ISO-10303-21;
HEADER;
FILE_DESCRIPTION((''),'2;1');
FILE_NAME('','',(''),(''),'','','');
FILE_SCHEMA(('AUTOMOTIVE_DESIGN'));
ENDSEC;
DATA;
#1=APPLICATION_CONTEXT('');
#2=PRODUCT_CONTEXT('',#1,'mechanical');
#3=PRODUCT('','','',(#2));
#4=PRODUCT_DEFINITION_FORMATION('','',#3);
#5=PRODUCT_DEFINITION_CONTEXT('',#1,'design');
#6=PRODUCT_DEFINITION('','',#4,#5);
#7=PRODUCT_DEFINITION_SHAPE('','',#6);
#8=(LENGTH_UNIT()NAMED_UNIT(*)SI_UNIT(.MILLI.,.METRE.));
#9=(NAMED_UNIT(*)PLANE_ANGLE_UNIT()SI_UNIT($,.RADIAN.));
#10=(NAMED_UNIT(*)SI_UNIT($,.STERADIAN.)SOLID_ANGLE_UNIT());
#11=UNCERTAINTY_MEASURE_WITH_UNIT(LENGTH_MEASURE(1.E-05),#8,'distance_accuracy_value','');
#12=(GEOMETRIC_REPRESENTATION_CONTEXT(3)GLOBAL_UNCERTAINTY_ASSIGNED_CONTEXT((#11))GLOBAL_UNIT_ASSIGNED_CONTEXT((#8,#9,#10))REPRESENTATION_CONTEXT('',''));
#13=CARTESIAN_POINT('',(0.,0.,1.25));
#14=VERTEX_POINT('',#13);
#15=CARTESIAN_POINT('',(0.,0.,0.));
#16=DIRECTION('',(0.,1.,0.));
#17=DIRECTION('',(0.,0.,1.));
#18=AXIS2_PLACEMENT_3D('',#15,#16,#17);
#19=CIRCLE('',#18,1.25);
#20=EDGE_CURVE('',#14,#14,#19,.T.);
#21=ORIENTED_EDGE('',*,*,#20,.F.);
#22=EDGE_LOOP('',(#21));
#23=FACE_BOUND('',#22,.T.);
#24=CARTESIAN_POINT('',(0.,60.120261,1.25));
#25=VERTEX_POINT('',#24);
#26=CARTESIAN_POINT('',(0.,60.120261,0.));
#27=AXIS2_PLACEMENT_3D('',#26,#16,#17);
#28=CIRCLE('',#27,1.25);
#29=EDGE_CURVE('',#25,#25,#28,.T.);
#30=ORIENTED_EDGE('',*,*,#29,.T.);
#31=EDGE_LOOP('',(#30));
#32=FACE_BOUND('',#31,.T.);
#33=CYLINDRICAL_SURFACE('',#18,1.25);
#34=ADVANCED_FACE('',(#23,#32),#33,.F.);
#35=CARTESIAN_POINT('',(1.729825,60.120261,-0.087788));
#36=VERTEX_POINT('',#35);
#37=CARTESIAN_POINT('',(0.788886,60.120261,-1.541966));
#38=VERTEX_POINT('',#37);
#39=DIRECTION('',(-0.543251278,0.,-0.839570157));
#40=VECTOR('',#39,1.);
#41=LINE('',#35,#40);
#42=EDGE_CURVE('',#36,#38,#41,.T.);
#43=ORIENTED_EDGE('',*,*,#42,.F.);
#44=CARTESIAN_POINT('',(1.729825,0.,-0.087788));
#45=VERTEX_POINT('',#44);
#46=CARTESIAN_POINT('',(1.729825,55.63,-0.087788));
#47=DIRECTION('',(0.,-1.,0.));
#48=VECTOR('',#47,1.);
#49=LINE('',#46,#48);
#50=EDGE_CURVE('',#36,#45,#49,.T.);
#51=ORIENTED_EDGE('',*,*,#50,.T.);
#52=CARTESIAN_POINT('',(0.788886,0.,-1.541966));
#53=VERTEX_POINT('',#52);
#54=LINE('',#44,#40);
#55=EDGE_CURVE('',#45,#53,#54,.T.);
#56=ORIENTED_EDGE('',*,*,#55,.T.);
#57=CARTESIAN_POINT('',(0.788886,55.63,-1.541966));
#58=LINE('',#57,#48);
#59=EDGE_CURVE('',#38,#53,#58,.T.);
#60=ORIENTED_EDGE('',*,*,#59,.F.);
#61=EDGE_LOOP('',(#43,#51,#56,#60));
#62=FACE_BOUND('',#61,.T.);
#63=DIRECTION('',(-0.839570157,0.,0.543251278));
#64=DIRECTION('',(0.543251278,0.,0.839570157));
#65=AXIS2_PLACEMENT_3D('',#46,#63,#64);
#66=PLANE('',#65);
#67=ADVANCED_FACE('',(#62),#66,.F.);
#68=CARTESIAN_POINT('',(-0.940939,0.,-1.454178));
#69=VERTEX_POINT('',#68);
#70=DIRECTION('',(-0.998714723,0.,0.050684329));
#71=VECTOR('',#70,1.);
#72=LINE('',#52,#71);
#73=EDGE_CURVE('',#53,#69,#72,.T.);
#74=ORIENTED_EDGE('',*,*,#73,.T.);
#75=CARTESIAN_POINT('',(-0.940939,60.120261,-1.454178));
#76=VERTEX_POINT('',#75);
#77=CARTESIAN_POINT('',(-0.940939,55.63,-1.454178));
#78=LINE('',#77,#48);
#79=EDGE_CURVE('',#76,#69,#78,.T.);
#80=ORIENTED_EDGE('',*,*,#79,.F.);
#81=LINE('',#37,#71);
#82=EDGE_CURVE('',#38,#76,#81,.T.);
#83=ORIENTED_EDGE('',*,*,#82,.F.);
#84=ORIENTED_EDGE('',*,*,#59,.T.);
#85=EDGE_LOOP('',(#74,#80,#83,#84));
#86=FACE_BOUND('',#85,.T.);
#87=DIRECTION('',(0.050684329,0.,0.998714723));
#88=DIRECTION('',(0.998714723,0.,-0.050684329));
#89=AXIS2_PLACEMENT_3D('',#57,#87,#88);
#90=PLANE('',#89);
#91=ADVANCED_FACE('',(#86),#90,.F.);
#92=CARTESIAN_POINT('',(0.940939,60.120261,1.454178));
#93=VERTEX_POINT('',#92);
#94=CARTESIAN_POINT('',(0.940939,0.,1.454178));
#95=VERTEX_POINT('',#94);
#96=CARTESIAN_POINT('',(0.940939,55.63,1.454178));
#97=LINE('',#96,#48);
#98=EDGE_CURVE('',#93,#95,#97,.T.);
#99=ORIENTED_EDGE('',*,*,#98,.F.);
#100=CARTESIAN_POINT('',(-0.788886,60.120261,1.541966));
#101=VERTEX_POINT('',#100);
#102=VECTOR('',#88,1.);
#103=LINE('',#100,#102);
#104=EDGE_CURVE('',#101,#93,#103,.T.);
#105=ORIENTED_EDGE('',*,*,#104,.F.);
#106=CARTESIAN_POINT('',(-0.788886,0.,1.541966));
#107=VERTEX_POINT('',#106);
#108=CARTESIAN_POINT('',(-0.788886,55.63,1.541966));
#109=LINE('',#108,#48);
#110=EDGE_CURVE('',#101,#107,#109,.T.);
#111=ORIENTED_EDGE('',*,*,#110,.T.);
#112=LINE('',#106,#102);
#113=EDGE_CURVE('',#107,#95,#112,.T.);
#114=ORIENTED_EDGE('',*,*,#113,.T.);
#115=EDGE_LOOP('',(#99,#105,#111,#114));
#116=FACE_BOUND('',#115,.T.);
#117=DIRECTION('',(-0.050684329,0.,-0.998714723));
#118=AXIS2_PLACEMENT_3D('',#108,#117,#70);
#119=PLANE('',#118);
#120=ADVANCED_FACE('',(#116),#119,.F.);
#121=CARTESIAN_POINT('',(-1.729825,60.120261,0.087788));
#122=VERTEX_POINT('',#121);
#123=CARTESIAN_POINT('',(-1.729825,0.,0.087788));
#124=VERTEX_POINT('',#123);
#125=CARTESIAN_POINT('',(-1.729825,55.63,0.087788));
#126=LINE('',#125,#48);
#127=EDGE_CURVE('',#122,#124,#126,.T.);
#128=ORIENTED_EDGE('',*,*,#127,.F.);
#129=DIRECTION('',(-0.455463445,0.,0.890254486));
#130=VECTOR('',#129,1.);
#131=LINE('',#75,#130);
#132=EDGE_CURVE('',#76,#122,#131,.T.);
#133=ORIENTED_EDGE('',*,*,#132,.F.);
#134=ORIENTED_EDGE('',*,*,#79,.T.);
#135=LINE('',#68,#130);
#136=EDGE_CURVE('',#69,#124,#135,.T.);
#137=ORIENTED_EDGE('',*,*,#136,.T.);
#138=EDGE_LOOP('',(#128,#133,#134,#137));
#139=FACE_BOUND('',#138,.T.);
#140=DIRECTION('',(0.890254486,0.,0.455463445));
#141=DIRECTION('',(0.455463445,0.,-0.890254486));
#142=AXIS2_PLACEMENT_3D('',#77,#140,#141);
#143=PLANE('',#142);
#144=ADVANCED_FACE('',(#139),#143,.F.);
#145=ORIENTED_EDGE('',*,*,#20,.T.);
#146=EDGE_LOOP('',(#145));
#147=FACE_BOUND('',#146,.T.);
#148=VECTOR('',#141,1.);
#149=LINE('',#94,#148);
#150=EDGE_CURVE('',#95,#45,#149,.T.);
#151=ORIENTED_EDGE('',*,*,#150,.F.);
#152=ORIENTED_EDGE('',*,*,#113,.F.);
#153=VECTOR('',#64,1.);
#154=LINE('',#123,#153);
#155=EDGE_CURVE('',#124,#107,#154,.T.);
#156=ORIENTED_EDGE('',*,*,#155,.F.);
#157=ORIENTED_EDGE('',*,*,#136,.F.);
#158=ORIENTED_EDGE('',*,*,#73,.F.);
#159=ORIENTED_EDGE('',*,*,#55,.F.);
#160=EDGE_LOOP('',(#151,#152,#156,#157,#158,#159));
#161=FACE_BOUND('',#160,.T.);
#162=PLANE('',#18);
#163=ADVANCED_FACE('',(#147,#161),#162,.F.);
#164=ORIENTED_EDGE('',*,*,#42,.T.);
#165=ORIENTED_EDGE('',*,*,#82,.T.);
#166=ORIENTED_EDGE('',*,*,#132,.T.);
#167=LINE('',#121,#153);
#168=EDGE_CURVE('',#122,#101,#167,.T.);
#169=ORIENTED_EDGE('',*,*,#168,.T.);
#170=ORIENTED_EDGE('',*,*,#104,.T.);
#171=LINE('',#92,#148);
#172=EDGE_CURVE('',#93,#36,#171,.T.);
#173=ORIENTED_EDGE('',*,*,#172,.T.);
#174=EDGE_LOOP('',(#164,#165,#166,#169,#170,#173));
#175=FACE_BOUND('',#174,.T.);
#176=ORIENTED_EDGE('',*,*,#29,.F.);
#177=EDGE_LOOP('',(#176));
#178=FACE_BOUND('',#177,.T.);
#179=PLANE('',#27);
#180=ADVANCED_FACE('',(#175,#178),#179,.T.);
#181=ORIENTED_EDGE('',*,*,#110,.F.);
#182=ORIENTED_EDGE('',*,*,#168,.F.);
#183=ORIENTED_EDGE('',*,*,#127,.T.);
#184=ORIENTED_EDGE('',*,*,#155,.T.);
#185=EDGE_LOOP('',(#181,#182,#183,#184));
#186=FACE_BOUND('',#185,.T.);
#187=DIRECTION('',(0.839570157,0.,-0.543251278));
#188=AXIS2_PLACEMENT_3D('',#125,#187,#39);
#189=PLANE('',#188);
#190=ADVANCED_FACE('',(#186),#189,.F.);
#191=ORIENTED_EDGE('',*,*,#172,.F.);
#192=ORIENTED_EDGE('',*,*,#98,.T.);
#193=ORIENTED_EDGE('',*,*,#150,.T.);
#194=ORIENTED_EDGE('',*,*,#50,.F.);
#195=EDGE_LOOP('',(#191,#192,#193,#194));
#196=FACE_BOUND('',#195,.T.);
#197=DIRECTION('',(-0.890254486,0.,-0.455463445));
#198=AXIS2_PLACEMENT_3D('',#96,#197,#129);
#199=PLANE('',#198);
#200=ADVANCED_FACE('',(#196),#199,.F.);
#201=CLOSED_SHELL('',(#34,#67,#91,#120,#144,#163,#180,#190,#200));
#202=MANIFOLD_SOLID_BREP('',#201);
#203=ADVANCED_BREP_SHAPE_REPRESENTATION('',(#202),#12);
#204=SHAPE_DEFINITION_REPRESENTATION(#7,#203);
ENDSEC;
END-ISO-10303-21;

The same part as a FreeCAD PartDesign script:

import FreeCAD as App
import Part
import Sketcher
from FreeCAD import Vector


def add_polygon(sketch, points):
    """Adds a closed chain of lines whose ends are joined by coincident constraints."""
    first, n = sketch.GeometryCount, len(points)
    for a, b in zip(points, points[1:] + points[:1]):
        sketch.addGeometry(Part.LineSegment(App.Vector(*a, 0), App.Vector(*b, 0)), False)
    for i in range(n):
        sketch.addConstraint(Sketcher.Constraint("Coincident", first + i, 2, first + (i + 1) % n, 1))

doc = App.newDocument("Part")
params = doc.addObject("Spreadsheet::Sheet", "Params")
for row, (alias, value) in enumerate([
    ("pad1_length", "55.63 mm"),
    ("sketch2_diameter", "2.5 mm"),
    ("pocket1_length", "55.63 mm"),
    ("sketch3_diameter", "2.5 mm"),
    ("pad2_length", "4.490261 mm"),
], start=1):
    params.set(f"A{row}", alias)
    params.set(f"B{row}", "=" + value)
    params.setAlias(f"B{row}", alias)

body = doc.addObject("PartDesign::Body", "Body")

# Sketch on XZ plane
sketch1 = body.newObject("Sketcher::SketchObject", "Sketch")
sketch1.AttachmentSupport = (doc.getObject("XZ_Plane"), [""])
sketch1.MapMode = "FlatFace"
add_polygon(sketch1, [(0.9, 1.5), (1.7, -0.1), (0.8, -1.5), (-0.9, -1.5), (-1.7, 0.1), (-0.8, 1.5)])  # lines 0-5
sketch1.addConstraint(Sketcher.Constraint("Symmetric", 0, 2, 3, 2, -1, 1))
sketch1.addConstraint(Sketcher.Constraint("Symmetric", 1, 2, 4, 2, -1, 1))
sketch1.addConstraint(Sketcher.Constraint("Symmetric", 2, 2, 5, 2, -1, 1))
sketch1.addConstraint(Sketcher.Constraint("Equal", 0, 1))
sketch1.addConstraint(Sketcher.Constraint("Equal", 1, 2))
sketch1.addConstraint(Sketcher.Constraint("Distance", 0, 1.732051))
sketch1.addConstraint(Sketcher.Constraint("DistanceX", 2, 2, -1, 1, 0.940939))
sketch1.addConstraint(Sketcher.Constraint("DistanceY", 2, 2, -1, 1, 1.454178))
sketch1.addConstraint(Sketcher.Constraint("DistanceX", 1, 2, 0, 2, 0.940939))
pad1 = body.newObject("PartDesign::Pad", "Pad")
pad1.Profile = sketch1
pad1.setExpression("Length", "Params.pad1_length")
pad1.Reversed = True

# Sketch on XZ plane
sketch2 = body.newObject("Sketcher::SketchObject", "Sketch001")
sketch2.AttachmentSupport = (doc.getObject("XZ_Plane"), [""])
sketch2.MapMode = "FlatFace"
sketch2.AttachmentOffset = App.Placement(Vector(0, 0, -55.63), App.Rotation())
sketch2.addGeometry(Part.Circle(Vector(0, 0, 0), Vector(0, 0, 1), 1.2), False)
sketch2.addConstraint(Sketcher.Constraint("Coincident", 0, 3, -1, 1))
sketch2.addConstraint(Sketcher.Constraint("Diameter", 0, 2.5))
sketch2.setExpression("Constraints[1]", "Params.sketch2_diameter")
pocket1 = body.newObject("PartDesign::Pocket", "Pocket")
pocket1.Profile = sketch2
pocket1.setExpression("Length", "Params.pocket1_length")
pocket1.Reversed = True

# Sketch on XZ plane
sketch3 = body.newObject("Sketcher::SketchObject", "Sketch002")
sketch3.AttachmentSupport = (doc.getObject("XZ_Plane"), [""])
sketch3.MapMode = "FlatFace"
sketch3.AttachmentOffset = App.Placement(Vector(0, 0, -60.120261), App.Rotation())
add_polygon(sketch3, [(0.8, -1.5), (-0.9, -1.5), (-1.7, 0.1), (-0.8, 1.5), (0.9, 1.5), (1.7, -0.1)])  # lines 0-5
sketch3.addGeometry(Part.Circle(Vector(0, 0, 0), Vector(0, 0, 1), 1.2), False)  # 6
sketch3.addConstraint(Sketcher.Constraint("Coincident", 6, 3, -1, 1))
sketch3.addConstraint(Sketcher.Constraint("Symmetric", 0, 2, 3, 2, -1, 1))
sketch3.addConstraint(Sketcher.Constraint("Symmetric", 1, 2, 4, 2, -1, 1))
sketch3.addConstraint(Sketcher.Constraint("Symmetric", 2, 2, 5, 2, -1, 1))
sketch3.addConstraint(Sketcher.Constraint("Equal", 0, 1))
sketch3.addConstraint(Sketcher.Constraint("Equal", 1, 2))
sketch3.addConstraint(Sketcher.Constraint("Diameter", 6, 2.5))
sketch3.addConstraint(Sketcher.Constraint("Distance", 0, 1.732051))
sketch3.addConstraint(Sketcher.Constraint("DistanceX", 0, 2, -1, 1, 0.940939))
sketch3.addConstraint(Sketcher.Constraint("DistanceY", 0, 2, -1, 1, 1.454178))
sketch3.addConstraint(Sketcher.Constraint("DistanceX", 1, 2, 2, 2, 0.940939))
sketch3.setExpression("Constraints[12]", "Params.sketch3_diameter")
pad2 = body.newObject("PartDesign::Pad", "Pad001")
pad2.Profile = sketch3
pad2.setExpression("Length", "Params.pad2_length")

doc.recompute()
